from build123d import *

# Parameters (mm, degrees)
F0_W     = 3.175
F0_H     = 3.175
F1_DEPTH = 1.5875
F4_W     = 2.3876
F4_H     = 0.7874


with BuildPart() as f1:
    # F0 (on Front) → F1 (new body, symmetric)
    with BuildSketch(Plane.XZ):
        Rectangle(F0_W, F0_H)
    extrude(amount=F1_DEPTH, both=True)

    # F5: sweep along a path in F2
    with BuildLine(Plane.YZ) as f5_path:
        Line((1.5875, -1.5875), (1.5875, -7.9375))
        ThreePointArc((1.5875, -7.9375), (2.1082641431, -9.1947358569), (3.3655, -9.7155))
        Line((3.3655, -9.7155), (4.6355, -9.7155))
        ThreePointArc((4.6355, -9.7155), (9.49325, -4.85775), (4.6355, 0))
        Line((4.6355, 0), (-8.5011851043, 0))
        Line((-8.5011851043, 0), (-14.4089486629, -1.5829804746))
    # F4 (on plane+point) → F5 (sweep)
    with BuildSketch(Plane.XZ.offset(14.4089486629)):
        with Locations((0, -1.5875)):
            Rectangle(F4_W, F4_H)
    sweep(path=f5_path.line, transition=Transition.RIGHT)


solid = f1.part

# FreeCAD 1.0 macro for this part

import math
import FreeCAD as App
import Part
import Sketcher
from FreeCAD import Vector
Q = App.Units.Quantity

doc = App.newDocument("Part")
body = doc.addObject("PartDesign::Body", "Body")

# Sketch on XZ plane
sketch1 = body.newObject("Sketcher::SketchObject", "Sketch")
sketch1.AttachmentSupport = (doc.getObject("XZ_Plane"), [""])
sketch1.MapMode = "FlatFace"
sketch1.addGeometry([
    Part.LineSegment(Vector(-1.6, 1.6, 0), Vector(-1.6, -1.6, 0)),
    Part.LineSegment(Vector(-1.6, -1.6, 0), Vector(1.6, -1.6, 0)),
    Part.LineSegment(Vector(1.6, -1.6, 0), Vector(1.6, 1.6, 0)),
    Part.LineSegment(Vector(1.6, 1.6, 0), Vector(-1.6, 1.6, 0)),
], False)
sketch1.addConstraint([
    Sketcher.Constraint("Coincident", 0, 2, 1, 1),
    Sketcher.Constraint("Coincident", 1, 2, 2, 1),
    Sketcher.Constraint("Coincident", 2, 2, 3, 1),
    Sketcher.Constraint("Coincident", 3, 2, 0, 1),
    Sketcher.Constraint("Vertical", 0),
    Sketcher.Constraint("Horizontal", 1),
    Sketcher.Constraint("Vertical", 2),
    Sketcher.Constraint("Horizontal", 3),
    Sketcher.Constraint("Symmetric", 0, 2, 2, 2, -1, 1),
    Sketcher.Constraint("Equal", 3, 0),
    Sketcher.Constraint("DistanceX", 1, 1, 1, 2, Q("0.125 in")),
])
pad1 = body.newObject("PartDesign::Pad", "Pad")
pad1.Profile = sketch1
pad1.Length = Q("0.125 in")
pad1.Midplane = True

# Sketch on XZ plane
sketch2 = body.newObject("Sketcher::SketchObject", "Sketch001")
sketch2.AttachmentSupport = (doc.getObject("XZ_Plane"), [""])
sketch2.MapMode = "FlatFace"
sketch2.AttachmentOffset = App.Placement(Vector(0, 0, 14.408949), App.Rotation())
sketch2.addGeometry([
    Part.LineSegment(Vector(-1.2, -1.2, 0), Vector(-1.2, -2, 0)),
    Part.LineSegment(Vector(-1.2, -2, 0), Vector(1.2, -2, 0)),
    Part.LineSegment(Vector(1.2, -2, 0), Vector(1.2, -1.2, 0)),
    Part.LineSegment(Vector(1.2, -1.2, 0), Vector(-1.2, -1.2, 0)),
], False)
sketch2.addConstraint([
    Sketcher.Constraint("Coincident", 0, 2, 1, 1),
    Sketcher.Constraint("Coincident", 1, 2, 2, 1),
    Sketcher.Constraint("Coincident", 2, 2, 3, 1),
    Sketcher.Constraint("Coincident", 3, 2, 0, 1),
    Sketcher.Constraint("Vertical", 0),
    Sketcher.Constraint("Horizontal", 1),
    Sketcher.Constraint("Vertical", 2),
    Sketcher.Constraint("Horizontal", 3),
    Sketcher.Constraint("DistanceX", 1, 1, 1, 2, Q("0.094 in")),
    Sketcher.Constraint("DistanceY", 0, 2, 0, 1, Q("0.031 in")),
    Sketcher.Constraint("DistanceX", 0, 2, -1, 1, Q("0.047 in")),
    Sketcher.Constraint("DistanceY", 0, 2, -1, 1, Q("0.078 in")),
])

# Sketch on YZ plane
sketch3 = body.newObject("Sketcher::SketchObject", "Sketch002")
sketch3.AttachmentSupport = (doc.getObject("YZ_Plane"), [""])
sketch3.MapMode = "FlatFace"
sketch3.addGeometry([
    Part.LineSegment(Vector(1.6, -1.6, 0), Vector(1.6, -7.9, 0)),  # 0
    Part.ArcOfCircle(Part.Circle(Vector(3.4, -7.9, 0), Vector(0, 0, 1), 1.8), math.radians(180), math.radians(270)),  # 1
    Part.LineSegment(Vector(3.4, -9.7, 0), Vector(4.6, -9.7, 0)),  # 2
    Part.ArcOfCircle(Part.Circle(Vector(4.6, -4.9, 0), Vector(0, 0, 1), 4.9), math.radians(-90), math.radians(90)),  # 3
    Part.LineSegment(Vector(4.6, 0, 0), Vector(-8.5, 0, 0)),  # 4
    Part.LineSegment(Vector(-8.5, 0, 0), Vector(-14.4, -1.6, 0)),  # 5
], False)
sketch3.addConstraint([
    Sketcher.Constraint("Tangent", 0, 2, 1, 1),
    Sketcher.Constraint("Tangent", 1, 2, 2, 1),
    Sketcher.Constraint("Tangent", 2, 2, 3, 1),
    Sketcher.Constraint("Tangent", 3, 2, 4, 1),
    Sketcher.Constraint("Coincident", 4, 2, 5, 1),
    Sketcher.Constraint("Vertical", 0),
    Sketcher.Constraint("Horizontal", 2),
    Sketcher.Constraint("Horizontal", 4),
    Sketcher.Constraint("PointOnObject", 3, 2, -1),
    Sketcher.Constraint("Radius", 1, Q("0.07 in")),
    Sketcher.Constraint("Angle", 5, Q("-165 deg")),
    Sketcher.Constraint("DistanceX", 2, 1, 2, 2, Q("0.05 in")),
    Sketcher.Constraint("DistanceY", 0, 2, 0, 1, Q("0.25 in")),
    Sketcher.Constraint("DistanceY", 1, 3, -1, 1, Q("0.3125 in")),
    Sketcher.Constraint("DistanceX", -1, 1, 0, 1, Q("0.0625 in")),
    Sketcher.Constraint("DistanceX", 4, 2, 4, 1, Q("13.136685 mm")),
    Sketcher.Constraint("DistanceX", 5, 2, -1, 1, Q("14.408949 mm")),
])
doc.recompute()

additivepipe = body.newObject("PartDesign::AdditivePipe", "AdditivePipe")
additivepipe.Profile = sketch2
additivepipe.Spine = (sketch3, ["Edge1", "Edge2", "Edge3", "Edge4", "Edge5", "Edge6"])
additivepipe.Transition = "Right corner"

doc.recompute()
